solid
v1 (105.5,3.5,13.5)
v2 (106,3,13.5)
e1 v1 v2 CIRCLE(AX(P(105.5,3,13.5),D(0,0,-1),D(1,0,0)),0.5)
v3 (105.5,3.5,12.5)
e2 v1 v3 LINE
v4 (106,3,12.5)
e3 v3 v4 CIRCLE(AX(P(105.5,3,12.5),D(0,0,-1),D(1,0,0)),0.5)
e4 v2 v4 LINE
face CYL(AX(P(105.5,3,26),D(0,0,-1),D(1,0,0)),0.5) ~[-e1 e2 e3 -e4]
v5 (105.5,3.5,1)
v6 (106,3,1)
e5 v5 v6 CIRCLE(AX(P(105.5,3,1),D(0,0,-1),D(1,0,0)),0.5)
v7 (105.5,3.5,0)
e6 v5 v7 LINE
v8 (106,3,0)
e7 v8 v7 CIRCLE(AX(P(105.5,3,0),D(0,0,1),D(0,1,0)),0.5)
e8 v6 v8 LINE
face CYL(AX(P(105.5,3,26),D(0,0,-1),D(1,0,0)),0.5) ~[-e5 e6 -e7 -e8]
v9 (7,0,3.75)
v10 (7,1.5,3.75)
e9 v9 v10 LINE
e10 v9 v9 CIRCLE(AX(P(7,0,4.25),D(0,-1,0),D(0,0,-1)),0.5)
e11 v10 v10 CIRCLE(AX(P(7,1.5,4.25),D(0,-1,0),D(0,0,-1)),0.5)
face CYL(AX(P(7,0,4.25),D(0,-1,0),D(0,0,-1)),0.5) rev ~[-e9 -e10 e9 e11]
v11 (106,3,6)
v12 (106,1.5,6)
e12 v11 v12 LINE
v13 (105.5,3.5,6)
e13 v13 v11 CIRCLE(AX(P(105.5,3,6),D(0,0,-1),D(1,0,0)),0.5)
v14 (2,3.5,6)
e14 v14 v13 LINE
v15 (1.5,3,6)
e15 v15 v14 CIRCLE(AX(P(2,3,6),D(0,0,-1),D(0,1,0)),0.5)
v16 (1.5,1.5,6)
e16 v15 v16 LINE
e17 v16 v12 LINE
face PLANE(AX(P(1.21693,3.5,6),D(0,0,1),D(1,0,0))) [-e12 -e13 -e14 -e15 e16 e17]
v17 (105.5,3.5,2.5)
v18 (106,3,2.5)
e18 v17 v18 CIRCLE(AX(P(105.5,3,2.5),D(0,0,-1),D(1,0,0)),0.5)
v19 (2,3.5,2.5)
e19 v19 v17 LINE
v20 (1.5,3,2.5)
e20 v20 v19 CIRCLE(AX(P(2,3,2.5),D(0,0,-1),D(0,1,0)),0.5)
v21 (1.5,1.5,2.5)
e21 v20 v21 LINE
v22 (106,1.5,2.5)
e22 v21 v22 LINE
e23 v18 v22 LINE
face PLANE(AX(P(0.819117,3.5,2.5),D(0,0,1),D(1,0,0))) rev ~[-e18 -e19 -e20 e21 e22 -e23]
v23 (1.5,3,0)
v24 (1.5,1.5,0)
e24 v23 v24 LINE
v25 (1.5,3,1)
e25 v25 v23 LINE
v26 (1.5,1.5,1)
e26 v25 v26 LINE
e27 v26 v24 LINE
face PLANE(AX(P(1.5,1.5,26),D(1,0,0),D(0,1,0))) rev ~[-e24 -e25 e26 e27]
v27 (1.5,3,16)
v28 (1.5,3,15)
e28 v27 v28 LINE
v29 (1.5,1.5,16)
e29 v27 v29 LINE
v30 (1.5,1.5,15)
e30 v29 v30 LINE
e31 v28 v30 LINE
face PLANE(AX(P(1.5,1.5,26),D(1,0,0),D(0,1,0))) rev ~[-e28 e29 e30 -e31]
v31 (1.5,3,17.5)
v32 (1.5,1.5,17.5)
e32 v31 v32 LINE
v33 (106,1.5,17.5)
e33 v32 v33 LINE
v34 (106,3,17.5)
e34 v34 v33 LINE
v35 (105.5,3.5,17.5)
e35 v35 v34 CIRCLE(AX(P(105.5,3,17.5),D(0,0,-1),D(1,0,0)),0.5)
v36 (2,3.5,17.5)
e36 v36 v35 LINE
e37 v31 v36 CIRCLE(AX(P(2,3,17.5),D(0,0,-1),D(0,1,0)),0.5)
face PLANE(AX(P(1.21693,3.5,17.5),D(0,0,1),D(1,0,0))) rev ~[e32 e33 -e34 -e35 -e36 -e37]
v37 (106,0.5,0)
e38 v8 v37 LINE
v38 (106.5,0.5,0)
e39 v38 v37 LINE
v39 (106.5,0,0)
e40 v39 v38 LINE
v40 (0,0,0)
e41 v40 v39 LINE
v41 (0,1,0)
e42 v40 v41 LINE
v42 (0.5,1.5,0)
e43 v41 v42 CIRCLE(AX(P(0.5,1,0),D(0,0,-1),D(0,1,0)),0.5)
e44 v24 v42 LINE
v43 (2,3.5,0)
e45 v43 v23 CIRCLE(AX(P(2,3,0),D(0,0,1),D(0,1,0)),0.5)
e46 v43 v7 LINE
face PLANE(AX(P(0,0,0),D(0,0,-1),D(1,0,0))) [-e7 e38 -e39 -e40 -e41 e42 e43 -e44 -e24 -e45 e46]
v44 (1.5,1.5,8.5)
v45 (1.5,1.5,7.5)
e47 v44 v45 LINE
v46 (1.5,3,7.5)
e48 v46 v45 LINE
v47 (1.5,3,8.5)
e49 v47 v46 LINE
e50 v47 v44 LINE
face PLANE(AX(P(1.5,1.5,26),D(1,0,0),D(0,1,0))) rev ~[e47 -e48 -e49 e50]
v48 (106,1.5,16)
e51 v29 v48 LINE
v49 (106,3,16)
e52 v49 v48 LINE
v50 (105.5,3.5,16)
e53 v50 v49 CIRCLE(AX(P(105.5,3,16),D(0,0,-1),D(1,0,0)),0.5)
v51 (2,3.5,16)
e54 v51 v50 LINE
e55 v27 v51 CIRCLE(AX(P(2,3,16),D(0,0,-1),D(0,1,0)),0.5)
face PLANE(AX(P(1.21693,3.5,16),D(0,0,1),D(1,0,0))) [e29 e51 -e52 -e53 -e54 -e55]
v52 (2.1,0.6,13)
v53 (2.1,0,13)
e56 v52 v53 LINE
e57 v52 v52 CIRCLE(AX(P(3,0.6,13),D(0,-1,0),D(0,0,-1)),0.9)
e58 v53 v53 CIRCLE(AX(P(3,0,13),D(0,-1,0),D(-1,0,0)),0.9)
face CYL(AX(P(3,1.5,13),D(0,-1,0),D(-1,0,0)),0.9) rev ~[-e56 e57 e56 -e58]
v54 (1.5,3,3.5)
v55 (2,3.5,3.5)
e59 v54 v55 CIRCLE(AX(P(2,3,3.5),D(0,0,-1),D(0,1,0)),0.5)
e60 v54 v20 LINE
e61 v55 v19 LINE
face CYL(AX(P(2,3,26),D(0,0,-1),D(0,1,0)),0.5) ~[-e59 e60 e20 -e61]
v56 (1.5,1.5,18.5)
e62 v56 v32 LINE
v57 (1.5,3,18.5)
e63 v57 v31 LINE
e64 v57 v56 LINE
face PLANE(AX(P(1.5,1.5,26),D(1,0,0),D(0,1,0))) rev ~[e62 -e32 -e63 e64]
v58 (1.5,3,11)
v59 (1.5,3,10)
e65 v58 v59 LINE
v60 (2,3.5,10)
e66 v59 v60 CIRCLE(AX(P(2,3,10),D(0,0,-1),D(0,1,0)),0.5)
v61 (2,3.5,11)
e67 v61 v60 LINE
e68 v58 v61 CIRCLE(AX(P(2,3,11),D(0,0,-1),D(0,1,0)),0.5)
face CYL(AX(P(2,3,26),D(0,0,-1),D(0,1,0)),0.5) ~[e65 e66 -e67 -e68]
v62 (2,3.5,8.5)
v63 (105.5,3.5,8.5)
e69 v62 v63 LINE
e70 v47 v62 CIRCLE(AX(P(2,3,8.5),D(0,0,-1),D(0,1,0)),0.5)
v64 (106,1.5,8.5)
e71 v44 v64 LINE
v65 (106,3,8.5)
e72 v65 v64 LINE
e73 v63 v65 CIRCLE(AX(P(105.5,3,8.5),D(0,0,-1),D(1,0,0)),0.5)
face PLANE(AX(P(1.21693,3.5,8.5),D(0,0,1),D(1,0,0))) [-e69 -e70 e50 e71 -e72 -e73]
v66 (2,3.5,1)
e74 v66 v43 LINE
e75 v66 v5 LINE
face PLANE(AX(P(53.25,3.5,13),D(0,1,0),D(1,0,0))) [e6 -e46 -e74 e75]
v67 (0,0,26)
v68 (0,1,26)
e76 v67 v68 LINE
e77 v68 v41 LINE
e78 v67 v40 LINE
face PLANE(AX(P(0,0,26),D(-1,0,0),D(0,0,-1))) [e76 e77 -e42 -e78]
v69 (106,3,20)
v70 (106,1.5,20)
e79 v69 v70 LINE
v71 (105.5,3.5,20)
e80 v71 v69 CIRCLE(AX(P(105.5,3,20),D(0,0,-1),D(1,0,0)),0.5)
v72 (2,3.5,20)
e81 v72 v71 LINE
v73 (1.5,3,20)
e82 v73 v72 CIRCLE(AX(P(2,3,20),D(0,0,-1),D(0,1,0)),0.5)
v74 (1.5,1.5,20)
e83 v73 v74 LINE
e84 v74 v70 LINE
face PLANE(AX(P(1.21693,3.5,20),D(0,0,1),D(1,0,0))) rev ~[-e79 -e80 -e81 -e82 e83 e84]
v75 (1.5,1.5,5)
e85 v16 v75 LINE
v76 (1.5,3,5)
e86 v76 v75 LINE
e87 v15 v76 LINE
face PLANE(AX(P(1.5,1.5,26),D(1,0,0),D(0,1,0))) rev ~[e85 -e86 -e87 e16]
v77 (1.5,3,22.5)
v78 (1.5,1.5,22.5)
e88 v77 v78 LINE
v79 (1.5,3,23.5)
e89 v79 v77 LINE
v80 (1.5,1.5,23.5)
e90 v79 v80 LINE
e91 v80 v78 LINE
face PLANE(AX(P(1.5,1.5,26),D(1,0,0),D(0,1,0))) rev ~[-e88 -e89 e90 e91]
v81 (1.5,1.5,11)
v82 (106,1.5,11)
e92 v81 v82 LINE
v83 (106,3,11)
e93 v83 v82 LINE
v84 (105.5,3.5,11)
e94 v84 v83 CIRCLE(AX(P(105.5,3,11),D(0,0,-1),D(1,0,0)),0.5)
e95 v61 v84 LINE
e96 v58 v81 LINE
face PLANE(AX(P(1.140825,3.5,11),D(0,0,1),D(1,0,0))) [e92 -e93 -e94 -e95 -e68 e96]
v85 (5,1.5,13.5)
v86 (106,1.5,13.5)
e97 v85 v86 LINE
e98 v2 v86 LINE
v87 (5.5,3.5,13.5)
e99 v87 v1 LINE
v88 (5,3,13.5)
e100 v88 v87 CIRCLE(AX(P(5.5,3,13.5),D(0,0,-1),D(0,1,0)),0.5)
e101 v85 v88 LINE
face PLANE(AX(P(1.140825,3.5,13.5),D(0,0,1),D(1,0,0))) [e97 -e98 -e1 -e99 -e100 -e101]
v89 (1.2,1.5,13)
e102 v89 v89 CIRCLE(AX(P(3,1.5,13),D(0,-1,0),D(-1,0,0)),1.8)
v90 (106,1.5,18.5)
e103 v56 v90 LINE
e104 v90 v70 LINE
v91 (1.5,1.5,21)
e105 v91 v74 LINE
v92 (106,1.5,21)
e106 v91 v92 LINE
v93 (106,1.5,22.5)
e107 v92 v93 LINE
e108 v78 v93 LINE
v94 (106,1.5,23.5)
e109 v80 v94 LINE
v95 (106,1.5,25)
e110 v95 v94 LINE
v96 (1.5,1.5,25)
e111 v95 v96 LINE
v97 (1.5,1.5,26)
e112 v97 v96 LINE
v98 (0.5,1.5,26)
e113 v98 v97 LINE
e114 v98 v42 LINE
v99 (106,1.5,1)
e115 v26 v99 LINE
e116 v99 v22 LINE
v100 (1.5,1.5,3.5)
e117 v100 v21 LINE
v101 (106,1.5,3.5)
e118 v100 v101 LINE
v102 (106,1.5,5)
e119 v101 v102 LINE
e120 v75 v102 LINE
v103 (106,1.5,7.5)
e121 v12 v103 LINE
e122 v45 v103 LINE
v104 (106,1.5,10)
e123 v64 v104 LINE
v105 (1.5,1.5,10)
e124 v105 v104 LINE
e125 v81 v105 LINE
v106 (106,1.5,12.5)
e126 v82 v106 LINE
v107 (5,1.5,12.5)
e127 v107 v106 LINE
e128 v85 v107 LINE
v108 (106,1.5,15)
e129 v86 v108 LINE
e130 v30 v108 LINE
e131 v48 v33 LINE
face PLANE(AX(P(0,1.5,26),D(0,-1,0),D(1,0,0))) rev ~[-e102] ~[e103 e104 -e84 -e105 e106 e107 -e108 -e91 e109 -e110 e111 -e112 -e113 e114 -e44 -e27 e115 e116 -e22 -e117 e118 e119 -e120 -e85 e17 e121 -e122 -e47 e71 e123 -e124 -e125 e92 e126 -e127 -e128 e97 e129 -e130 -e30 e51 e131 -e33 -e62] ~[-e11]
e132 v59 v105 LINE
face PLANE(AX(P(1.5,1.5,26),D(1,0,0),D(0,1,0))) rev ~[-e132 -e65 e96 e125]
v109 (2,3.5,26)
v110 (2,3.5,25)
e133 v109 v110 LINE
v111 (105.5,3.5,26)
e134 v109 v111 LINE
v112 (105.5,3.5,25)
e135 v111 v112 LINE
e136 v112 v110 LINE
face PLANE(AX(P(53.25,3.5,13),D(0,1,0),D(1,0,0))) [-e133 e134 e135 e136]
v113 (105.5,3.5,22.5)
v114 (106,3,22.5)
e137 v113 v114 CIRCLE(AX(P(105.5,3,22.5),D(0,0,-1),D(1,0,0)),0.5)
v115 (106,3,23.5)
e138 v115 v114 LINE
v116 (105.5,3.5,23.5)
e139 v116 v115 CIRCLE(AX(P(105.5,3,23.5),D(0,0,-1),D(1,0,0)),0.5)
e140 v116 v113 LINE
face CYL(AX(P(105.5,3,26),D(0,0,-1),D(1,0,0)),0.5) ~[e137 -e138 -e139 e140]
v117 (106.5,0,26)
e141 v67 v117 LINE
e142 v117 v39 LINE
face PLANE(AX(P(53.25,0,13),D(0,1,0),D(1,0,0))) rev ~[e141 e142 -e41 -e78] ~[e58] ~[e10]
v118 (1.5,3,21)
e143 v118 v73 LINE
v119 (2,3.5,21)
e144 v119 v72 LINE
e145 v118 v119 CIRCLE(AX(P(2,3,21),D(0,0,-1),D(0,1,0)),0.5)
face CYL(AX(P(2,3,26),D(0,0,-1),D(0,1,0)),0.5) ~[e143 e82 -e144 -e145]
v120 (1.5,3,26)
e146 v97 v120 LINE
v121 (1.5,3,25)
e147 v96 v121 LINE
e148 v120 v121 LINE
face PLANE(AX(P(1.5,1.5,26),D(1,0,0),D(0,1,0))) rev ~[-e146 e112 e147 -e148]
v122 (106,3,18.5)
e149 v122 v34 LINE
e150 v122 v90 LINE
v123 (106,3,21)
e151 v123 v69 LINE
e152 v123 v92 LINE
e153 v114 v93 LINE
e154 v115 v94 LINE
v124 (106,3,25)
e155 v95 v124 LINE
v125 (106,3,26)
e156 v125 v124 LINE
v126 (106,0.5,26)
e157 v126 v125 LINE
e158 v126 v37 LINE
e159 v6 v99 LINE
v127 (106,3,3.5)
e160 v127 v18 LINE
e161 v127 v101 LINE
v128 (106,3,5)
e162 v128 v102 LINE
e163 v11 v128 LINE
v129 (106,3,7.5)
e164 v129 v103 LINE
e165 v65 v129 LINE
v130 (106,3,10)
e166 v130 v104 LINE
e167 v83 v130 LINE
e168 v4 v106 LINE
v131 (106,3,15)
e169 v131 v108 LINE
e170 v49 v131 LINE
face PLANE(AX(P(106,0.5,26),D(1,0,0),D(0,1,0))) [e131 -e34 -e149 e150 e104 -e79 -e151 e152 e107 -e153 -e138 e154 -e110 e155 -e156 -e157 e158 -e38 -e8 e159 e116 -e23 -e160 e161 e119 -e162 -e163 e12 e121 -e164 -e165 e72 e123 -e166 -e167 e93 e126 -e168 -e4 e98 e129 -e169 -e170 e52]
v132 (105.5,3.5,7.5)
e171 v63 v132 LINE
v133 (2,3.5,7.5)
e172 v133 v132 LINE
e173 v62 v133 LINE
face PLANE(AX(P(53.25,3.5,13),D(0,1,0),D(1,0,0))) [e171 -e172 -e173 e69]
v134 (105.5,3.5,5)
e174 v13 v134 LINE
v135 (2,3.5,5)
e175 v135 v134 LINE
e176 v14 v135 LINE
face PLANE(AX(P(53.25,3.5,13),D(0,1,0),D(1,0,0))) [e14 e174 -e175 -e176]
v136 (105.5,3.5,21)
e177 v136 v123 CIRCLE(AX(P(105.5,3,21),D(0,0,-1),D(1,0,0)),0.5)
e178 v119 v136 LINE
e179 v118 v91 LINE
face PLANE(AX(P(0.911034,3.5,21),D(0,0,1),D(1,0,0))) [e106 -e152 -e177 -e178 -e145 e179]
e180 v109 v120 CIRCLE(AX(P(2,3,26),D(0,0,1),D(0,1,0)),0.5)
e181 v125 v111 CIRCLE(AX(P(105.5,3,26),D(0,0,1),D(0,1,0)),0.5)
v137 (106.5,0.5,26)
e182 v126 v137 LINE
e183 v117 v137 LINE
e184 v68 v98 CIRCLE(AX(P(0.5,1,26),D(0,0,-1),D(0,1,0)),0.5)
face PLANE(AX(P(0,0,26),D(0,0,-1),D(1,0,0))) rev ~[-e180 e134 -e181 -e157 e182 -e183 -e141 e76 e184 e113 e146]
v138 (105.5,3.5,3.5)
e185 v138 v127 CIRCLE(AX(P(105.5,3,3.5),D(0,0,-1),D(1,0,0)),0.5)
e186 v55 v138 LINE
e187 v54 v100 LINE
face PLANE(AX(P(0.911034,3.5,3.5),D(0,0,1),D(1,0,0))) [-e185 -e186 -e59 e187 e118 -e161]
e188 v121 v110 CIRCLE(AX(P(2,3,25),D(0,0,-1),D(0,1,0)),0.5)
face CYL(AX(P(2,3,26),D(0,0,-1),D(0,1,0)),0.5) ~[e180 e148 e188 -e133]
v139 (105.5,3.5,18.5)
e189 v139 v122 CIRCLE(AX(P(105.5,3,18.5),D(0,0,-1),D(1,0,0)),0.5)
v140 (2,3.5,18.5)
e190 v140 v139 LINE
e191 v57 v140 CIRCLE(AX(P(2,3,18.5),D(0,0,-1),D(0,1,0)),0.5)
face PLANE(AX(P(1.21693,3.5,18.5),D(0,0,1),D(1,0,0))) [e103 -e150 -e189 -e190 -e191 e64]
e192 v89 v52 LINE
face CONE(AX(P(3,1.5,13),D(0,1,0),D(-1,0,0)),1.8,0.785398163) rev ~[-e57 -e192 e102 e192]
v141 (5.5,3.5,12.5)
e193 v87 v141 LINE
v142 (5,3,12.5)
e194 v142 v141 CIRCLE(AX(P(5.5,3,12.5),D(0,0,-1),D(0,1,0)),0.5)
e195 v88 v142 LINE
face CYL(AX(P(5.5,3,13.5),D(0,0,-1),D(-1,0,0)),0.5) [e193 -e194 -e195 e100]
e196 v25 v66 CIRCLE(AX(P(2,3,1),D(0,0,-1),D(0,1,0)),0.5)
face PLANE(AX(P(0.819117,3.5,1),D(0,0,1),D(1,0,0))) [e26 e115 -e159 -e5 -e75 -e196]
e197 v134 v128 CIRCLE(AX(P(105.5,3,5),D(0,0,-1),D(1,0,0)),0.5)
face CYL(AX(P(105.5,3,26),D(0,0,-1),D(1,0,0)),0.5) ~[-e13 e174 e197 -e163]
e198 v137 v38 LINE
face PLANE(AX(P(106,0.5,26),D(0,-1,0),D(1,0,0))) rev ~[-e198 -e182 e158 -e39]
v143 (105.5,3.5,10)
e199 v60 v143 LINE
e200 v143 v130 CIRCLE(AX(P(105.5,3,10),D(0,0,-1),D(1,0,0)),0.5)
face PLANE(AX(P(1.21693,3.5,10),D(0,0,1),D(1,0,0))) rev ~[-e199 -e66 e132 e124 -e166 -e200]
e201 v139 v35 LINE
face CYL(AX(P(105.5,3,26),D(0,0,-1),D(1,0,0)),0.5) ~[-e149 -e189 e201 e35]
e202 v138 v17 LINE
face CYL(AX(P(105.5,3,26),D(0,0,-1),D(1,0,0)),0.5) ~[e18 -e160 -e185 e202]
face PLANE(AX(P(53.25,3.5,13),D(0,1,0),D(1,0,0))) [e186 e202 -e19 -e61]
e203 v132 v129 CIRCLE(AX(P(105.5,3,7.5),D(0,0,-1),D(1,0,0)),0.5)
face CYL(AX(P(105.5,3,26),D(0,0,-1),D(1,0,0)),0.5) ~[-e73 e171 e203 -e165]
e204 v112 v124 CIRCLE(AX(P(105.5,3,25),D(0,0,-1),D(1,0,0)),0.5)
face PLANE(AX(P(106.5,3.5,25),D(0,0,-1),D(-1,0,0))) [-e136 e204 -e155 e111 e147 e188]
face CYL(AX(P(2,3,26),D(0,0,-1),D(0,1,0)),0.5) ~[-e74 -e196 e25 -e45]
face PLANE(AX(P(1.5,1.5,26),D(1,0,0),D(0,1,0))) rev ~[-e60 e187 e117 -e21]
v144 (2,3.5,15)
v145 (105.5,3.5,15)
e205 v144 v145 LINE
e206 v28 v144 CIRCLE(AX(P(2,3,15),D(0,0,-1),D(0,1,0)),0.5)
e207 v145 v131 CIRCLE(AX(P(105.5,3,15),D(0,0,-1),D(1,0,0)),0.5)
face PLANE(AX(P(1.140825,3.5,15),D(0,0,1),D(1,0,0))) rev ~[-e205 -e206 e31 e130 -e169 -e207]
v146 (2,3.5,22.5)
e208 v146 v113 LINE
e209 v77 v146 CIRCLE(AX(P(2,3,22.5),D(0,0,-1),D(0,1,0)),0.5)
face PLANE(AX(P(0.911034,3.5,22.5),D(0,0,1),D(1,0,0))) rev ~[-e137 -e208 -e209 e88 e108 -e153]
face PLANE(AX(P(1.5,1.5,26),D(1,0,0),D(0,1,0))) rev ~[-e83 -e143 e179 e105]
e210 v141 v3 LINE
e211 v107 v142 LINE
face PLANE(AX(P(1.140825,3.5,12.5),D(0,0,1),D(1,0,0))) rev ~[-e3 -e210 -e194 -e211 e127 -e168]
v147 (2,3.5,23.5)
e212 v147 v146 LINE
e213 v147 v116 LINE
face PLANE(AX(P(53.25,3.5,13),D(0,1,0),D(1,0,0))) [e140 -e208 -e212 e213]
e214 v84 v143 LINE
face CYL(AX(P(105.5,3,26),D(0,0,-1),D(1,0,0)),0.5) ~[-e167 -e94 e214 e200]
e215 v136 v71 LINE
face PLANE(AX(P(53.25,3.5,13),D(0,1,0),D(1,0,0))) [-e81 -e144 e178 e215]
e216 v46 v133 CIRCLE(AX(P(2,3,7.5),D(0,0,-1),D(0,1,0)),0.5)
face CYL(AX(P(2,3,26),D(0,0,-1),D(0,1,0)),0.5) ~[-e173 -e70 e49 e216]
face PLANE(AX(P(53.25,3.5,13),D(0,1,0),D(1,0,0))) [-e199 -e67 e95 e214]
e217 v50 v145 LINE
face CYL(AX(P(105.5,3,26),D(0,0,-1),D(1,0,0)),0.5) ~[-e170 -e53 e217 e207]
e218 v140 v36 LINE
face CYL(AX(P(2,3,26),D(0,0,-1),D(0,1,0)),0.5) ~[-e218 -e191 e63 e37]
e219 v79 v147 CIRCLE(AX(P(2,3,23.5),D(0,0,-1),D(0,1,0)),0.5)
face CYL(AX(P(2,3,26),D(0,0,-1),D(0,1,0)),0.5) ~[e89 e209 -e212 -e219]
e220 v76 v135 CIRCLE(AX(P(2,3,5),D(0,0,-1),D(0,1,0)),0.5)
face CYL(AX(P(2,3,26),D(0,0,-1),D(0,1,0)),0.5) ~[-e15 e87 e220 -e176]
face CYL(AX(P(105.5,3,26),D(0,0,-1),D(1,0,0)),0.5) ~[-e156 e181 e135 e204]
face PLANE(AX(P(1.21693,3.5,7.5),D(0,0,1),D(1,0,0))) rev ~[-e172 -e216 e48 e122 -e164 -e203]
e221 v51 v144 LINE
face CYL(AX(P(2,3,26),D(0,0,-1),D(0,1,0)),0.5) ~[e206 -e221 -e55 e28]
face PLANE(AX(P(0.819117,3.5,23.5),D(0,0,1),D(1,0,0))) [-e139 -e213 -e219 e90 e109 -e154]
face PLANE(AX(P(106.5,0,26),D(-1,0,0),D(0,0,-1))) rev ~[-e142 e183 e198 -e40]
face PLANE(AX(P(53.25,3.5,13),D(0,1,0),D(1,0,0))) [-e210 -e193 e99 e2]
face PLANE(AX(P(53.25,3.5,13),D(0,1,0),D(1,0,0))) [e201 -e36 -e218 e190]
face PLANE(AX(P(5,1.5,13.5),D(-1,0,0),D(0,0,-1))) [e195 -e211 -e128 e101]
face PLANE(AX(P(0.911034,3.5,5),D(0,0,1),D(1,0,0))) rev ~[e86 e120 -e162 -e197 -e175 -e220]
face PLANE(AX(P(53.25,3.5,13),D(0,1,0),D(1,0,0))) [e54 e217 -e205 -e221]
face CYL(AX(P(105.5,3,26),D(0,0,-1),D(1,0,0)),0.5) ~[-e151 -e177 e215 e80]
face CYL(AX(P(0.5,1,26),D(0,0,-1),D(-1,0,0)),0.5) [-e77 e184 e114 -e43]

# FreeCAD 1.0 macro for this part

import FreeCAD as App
import Part
import Sketcher
from FreeCAD import Vector
Q = App.Units.Quantity


def edges_at(feature, points):
    """Names of the edges that pass closest to the given points."""
    edges = feature.Shape.Edges
    near = lambda p: min(range(len(edges)), key=lambda i: edges[i].distToShape(Part.Vertex(*p))[0])
    return sorted({f"Edge{near(p) + 1}" for p in points})

doc = App.newDocument("Part")
body = doc.addObject("PartDesign::Body", "Body")

# Sketch on XZ plane
sketch1 = body.newObject("Sketcher::SketchObject", "Sketch")
sketch1.AttachmentSupport = (doc.getObject("XZ_Plane"), [""])
sketch1.MapMode = "FlatFace"
sketch1.addGeometry([
    Part.LineSegment(Vector(0, 0, 0), Vector(0, 26, 0)),
    Part.LineSegment(Vector(0, 26, 0), Vector(106, 26, 0)),
    Part.LineSegment(Vector(106, 26, 0), Vector(106, 0, 0)),
    Part.LineSegment(Vector(106, 0, 0), Vector(0, 0, 0)),
], False)
sketch1.addConstraint([
    Sketcher.Constraint("Coincident", 0, 2, 1, 1),
    Sketcher.Constraint("Coincident", 1, 2, 2, 1),
    Sketcher.Constraint("Coincident", 2, 2, 3, 1),
    Sketcher.Constraint("Coincident", 3, 2, 0, 1),
    Sketcher.Constraint("Vertical", 0),
    Sketcher.Constraint("Horizontal", 1),
    Sketcher.Constraint("Vertical", 2),
    Sketcher.Constraint("Horizontal", 3),
    Sketcher.Constraint("Coincident", 3, 2, -1, 1),
    Sketcher.Constraint("DistanceY", 0, 1, 0, 2, Q("26 mm")),
    Sketcher.Constraint("DistanceX", 1, 1, 1, 2, Q("106.5 mm")),
])
pad1 = body.newObject("PartDesign::Pad", "Pad")
pad1.Profile = sketch1
pad1.Length = 3.5
pad1.Reversed = True

# Sketch on XY plane
sketch2 = body.newObject("Sketcher::SketchObject", "Sketch001")
sketch2.AttachmentSupport = (doc.getObject("XY_Plane"), [""])
sketch2.MapMode = "FlatFace"
sketch2.AttachmentOffset = App.Placement(Vector(0, 0, 26), App.Rotation())
sketch2.addGeometry([
    Part.LineSegment(Vector(106, 3.5, 0), Vector(106, 0.5, 0)),  # 0
    Part.LineSegment(Vector(106, 0.5, 0), Vector(106.5, 0.5, 0)),  # 1
    Part.LineSegment(Vector(106.5, 0.5, 0), Vector(106.5, 3.5, 0)),  # 2
    Part.LineSegment(Vector(106.5, 3.5, 0), Vector(106, 3.5, 0)),  # 3
    Part.LineSegment(Vector(0, 3.5, 0), Vector(0, 1.5, 0)),  # 4
    Part.LineSegment(Vector(0, 1.5, 0), Vector(1.5, 1.5, 0)),  # 5
    Part.LineSegment(Vector(1.5, 1.5, 0), Vector(1.5, 3.5, 0)),  # 6
    Part.LineSegment(Vector(1.5, 3.5, 0), Vector(0, 3.5, 0)),  # 7
], False)
sketch2.addConstraint([
    Sketcher.Constraint("Coincident", 0, 2, 1, 1),
    Sketcher.Constraint("Coincident", 1, 2, 2, 1),
    Sketcher.Constraint("Coincident", 2, 2, 3, 1),
    Sketcher.Constraint("Coincident", 3, 2, 0, 1),
    Sketcher.Constraint("Coincident", 4, 2, 5, 1),
    Sketcher.Constraint("Coincident", 5, 2, 6, 1),
    Sketcher.Constraint("Coincident", 6, 2, 7, 1),
    Sketcher.Constraint("Coincident", 7, 2, 4, 1),
    Sketcher.Constraint("Vertical", 0),
    Sketcher.Constraint("Horizontal", 1),
    Sketcher.Constraint("Vertical", 2),
    Sketcher.Constraint("Horizontal", 3),
    Sketcher.Constraint("Vertical", 4),
    Sketcher.Constraint("Horizontal", 5),
    Sketcher.Constraint("Vertical", 6),
    Sketcher.Constraint("Horizontal", 7),
    Sketcher.Constraint("PointOnObject", 4, 2, -2),
    Sketcher.Constraint("Horizontal", 3, 2, 6, 2),
    Sketcher.Constraint("DistanceY", 0, 2, 0, 1, Q("3 mm")),
    Sketcher.Constraint("DistanceY", 4, 2, 4, 1, Q("2 mm")),
    Sketcher.Constraint("DistanceX", 1, 1, 1, 2, Q("0.5 mm")),
    Sketcher.Constraint("DistanceX", 5, 1, 5, 2, Q("1.5 mm")),
    Sketcher.Constraint("DistanceX", -1, 1, 0, 2, Q("106 mm")),
    Sketcher.Constraint("DistanceY", -1, 1, 0, 2, Q("0.5 mm")),
])
pocket1 = body.newObject("PartDesign::Pocket", "Pocket")
pocket1.Profile = sketch2
pocket1.Type = "ThroughAll"
doc.recompute()

fillet = body.newObject("PartDesign::Fillet", "Fillet")
fillet.Base = (pocket1, edges_at(pocket1, [(106, 3.5, 13), (0, 1.5, 13), (1.5, 3.5, 13)]))
fillet.Radius = 0.5

# Sketch on XZ plane
sketch3 = body.newObject("Sketcher::SketchObject", "Sketch002")
sketch3.AttachmentSupport = (doc.getObject("XZ_Plane"), [""])
sketch3.MapMode = "FlatFace"
sketch3.AttachmentOffset = App.Placement(Vector(0, 0, -3.5), App.Rotation())
sketch3.addGeometry([
    Part.LineSegment(Vector(0.8, 1, 0), Vector(0.8, 2.5, 0)),  # 0
    Part.LineSegment(Vector(0.8, 2.5, 0), Vector(108, 2.5, 0)),  # 1
    Part.LineSegment(Vector(108, 2.5, 0), Vector(108, 1, 0)),  # 2
    Part.LineSegment(Vector(108, 1, 0), Vector(0.8, 1, 0)),  # 3
    Part.LineSegment(Vector(0.9, 3.5, 0), Vector(0.9, 5, 0)),  # 4
    Part.LineSegment(Vector(0.9, 5, 0), Vector(107.7, 5, 0)),  # 5
    Part.LineSegment(Vector(107.7, 5, 0), Vector(107.7, 3.5, 0)),  # 6
    Part.LineSegment(Vector(107.7, 3.5, 0), Vector(0.9, 3.5, 0)),  # 7
    Part.LineSegment(Vector(1.2, 6, 0), Vector(1.2, 7.5, 0)),  # 8
    Part.LineSegment(Vector(1.2, 7.5, 0), Vector(107.7, 7.5, 0)),  # 9
    Part.LineSegment(Vector(107.7, 7.5, 0), Vector(107.7, 6, 0)),  # 10
    Part.LineSegment(Vector(107.7, 6, 0), Vector(1.2, 6, 0)),  # 11
    Part.LineSegment(Vector(1.2, 8.5, 0), Vector(1.2, 10, 0)),  # 12
    Part.LineSegment(Vector(1.2, 10, 0), Vector(107.7, 10, 0)),  # 13
    Part.LineSegment(Vector(107.7, 10, 0), Vector(107.7, 8.5, 0)),  # 14
    Part.LineSegment(Vector(107.7, 8.5, 0), Vector(1.2, 8.5, 0)),  # 15
    Part.LineSegment(Vector(108, 23.5, 0), Vector(0.8, 23.5, 0)),  # 16
    Part.LineSegment(Vector(0.8, 23.5, 0), Vector(0.8, 25, 0)),  # 17
    Part.LineSegment(Vector(0.8, 25, 0), Vector(106.5, 25, 0)),  # 18
    Part.LineSegment(Vector(106.5, 25, 0), Vector(108, 23.5, 0)),  # 19
    Part.LineSegment(Vector(0.9, 21, 0), Vector(0.9, 22.5, 0)),  # 20
    Part.LineSegment(Vector(0.9, 22.5, 0), Vector(107.7, 22.5, 0)),  # 21
    Part.LineSegment(Vector(107.7, 22.5, 0), Vector(107.7, 21, 0)),  # 22
    Part.LineSegment(Vector(107.7, 21, 0), Vector(0.9, 21, 0)),  # 23
    Part.LineSegment(Vector(1.2, 18.5, 0), Vector(1.2, 20, 0)),  # 24
    Part.LineSegment(Vector(1.2, 20, 0), Vector(107.7, 20, 0)),  # 25
    Part.LineSegment(Vector(107.7, 20, 0), Vector(107.7, 18.5, 0)),  # 26
    Part.LineSegment(Vector(107.7, 18.5, 0), Vector(1.2, 18.5, 0)),  # 27
    Part.LineSegment(Vector(1.2, 16, 0), Vector(1.2, 17.5, 0)),  # 28
    Part.LineSegment(Vector(1.2, 17.5, 0), Vector(107.7, 17.5, 0)),  # 29
    Part.LineSegment(Vector(107.7, 17.5, 0), Vector(107.7, 16, 0)),  # 30
    Part.LineSegment(Vector(107.7, 16, 0), Vector(1.2, 16, 0)),  # 31
    Part.LineSegment(Vector(1.1, 11, 0), Vector(1.1, 12.5, 0)),  # 32
    Part.LineSegment(Vector(1.1, 12.5, 0), Vector(107.9, 12.5, 0)),  # 33
    Part.LineSegment(Vector(107.9, 12.5, 0), Vector(107.9, 11, 0)),  # 34
    Part.LineSegment(Vector(107.9, 11, 0), Vector(1.1, 11, 0)),  # 35
    Part.LineSegment(Vector(1.1, 13.5, 0), Vector(1.1, 15, 0)),  # 36
    Part.LineSegment(Vector(1.1, 15, 0), Vector(107.9, 15, 0)),  # 37
    Part.LineSegment(Vector(107.9, 15, 0), Vector(107.9, 13.5, 0)),  # 38
    Part.LineSegment(Vector(107.9, 13.5, 0), Vector(1.1, 13.5, 0)),  # 39
], False)
sketch3.addConstraint([
    Sketcher.Constraint("Coincident", 0, 2, 1, 1),
    Sketcher.Constraint("Coincident", 1, 2, 2, 1),
    Sketcher.Constraint("Coincident", 2, 2, 3, 1),
    Sketcher.Constraint("Coincident", 3, 2, 0, 1),
    Sketcher.Constraint("Coincident", 4, 2, 5, 1),
    Sketcher.Constraint("Coincident", 5, 2, 6, 1),
    Sketcher.Constraint("Coincident", 6, 2, 7, 1),
    Sketcher.Constraint("Coincident", 7, 2, 4, 1),
    Sketcher.Constraint("Coincident", 8, 2, 9, 1),
    Sketcher.Constraint("Coincident", 9, 2, 10, 1),
    Sketcher.Constraint("Coincident", 10, 2, 11, 1),
    Sketcher.Constraint("Coincident", 11, 2, 8, 1),
    Sketcher.Constraint("Coincident", 12, 2, 13, 1),
    Sketcher.Constraint("Coincident", 13, 2, 14, 1),
    Sketcher.Constraint("Coincident", 14, 2, 15, 1),
    Sketcher.Constraint("Coincident", 15, 2, 12, 1),
    Sketcher.Constraint("Coincident", 16, 2, 17, 1),
    Sketcher.Constraint("Coincident", 17, 2, 18, 1),
    Sketcher.Constraint("Coincident", 18, 2, 19, 1),
    Sketcher.Constraint("Coincident", 19, 2, 16, 1),
    Sketcher.Constraint("Coincident", 20, 2, 21, 1),
    Sketcher.Constraint("Coincident", 21, 2, 22, 1),
    Sketcher.Constraint("Coincident", 22, 2, 23, 1),
    Sketcher.Constraint("Coincident", 23, 2, 20, 1),
    Sketcher.Constraint("Coincident", 24, 2, 25, 1),
    Sketcher.Constraint("Coincident", 25, 2, 26, 1),
    Sketcher.Constraint("Coincident", 26, 2, 27, 1),
    Sketcher.Constraint("Coincident", 27, 2, 24, 1),
    Sketcher.Constraint("Coincident", 28, 2, 29, 1),
    Sketcher.Constraint("Coincident", 29, 2, 30, 1),
    Sketcher.Constraint("Coincident", 30, 2, 31, 1),
    Sketcher.Constraint("Coincident", 31, 2, 28, 1),
    Sketcher.Constraint("Coincident", 32, 2, 33, 1),
    Sketcher.Constraint("Coincident", 33, 2, 34, 1),
    Sketcher.Constraint("Coincident", 34, 2, 35, 1),
    Sketcher.Constraint("Coincident", 35, 2, 32, 1),
    Sketcher.Constraint("Coincident", 36, 2, 37, 1),
    Sketcher.Constraint("Coincident", 37, 2, 38, 1),
    Sketcher.Constraint("Coincident", 38, 2, 39, 1),
    Sketcher.Constraint("Coincident", 39, 2, 36, 1),
    Sketcher.Constraint("Vertical", 0),
    Sketcher.Constraint("Horizontal", 1),
    Sketcher.Constraint("Vertical", 2),
    Sketcher.Constraint("Horizontal", 3),
    Sketcher.Constraint("Vertical", 4),
    Sketcher.Constraint("Horizontal", 5),
    Sketcher.Constraint("Vertical", 6),
    Sketcher.Constraint("Horizontal", 7),
    Sketcher.Constraint("Vertical", 8),
    Sketcher.Constraint("Horizontal", 9),
    Sketcher.Constraint("Vertical", 10),
    Sketcher.Constraint("Horizontal", 11),
    Sketcher.Constraint("Vertical", 12),
    Sketcher.Constraint("Horizontal", 13),
    Sketcher.Constraint("Vertical", 14),
    Sketcher.Constraint("Horizontal", 15),
    Sketcher.Constraint("Horizontal", 16),
    Sketcher.Constraint("Vertical", 17),
    Sketcher.Constraint("Horizontal", 18),
    Sketcher.Constraint("Vertical", 20),
    Sketcher.Constraint("Horizontal", 21),
    Sketcher.Constraint("Vertical", 22),
    Sketcher.Constraint("Horizontal", 23),
    Sketcher.Constraint("Vertical", 24),
    Sketcher.Constraint("Horizontal", 25),
    Sketcher.Constraint("Vertical", 26),
    Sketcher.Constraint("Horizontal", 27),
    Sketcher.Constraint("Vertical", 28),
    Sketcher.Constraint("Horizontal", 29),
    Sketcher.Constraint("Vertical", 30),
    Sketcher.Constraint("Horizontal", 31),
    Sketcher.Constraint("Vertical", 32),
    Sketcher.Constraint("Horizontal", 33),
    Sketcher.Constraint("Vertical", 34),
    Sketcher.Constraint("Horizontal", 35),
    Sketcher.Constraint("Vertical", 36),
    Sketcher.Constraint("Horizontal", 37),
    Sketcher.Constraint("Vertical", 38),
    Sketcher.Constraint("Horizontal", 39),
    Sketcher.Constraint("Vertical", 11, 2, 12, 2),
    Sketcher.Constraint("Vertical", 10, 2, 13, 2),
    Sketcher.Constraint("Vertical", 3, 2, 16, 2),
    Sketcher.Constraint("Vertical", 2, 2, 19, 2),
    Sketcher.Constraint("Vertical", 7, 2, 20, 2),
    Sketcher.Constraint("Vertical", 6, 2, 21, 2),
    Sketcher.Constraint("Vertical", 15, 2, 24, 2),
    Sketcher.Constraint("Vertical", 14, 2, 25, 2),
    Sketcher.Constraint("Vertical", 27, 2, 28, 2),
    Sketcher.Constraint("Vertical", 26, 2, 29, 2),
    Sketcher.Constraint("Vertical", 35, 2, 36, 2),
    Sketcher.Constraint("Vertical", 34, 2, 37, 2),
    Sketcher.Constraint("Equal", 2, 4),
    Sketcher.Constraint("Equal", 6, 8),
    Sketcher.Constraint("Equal", 10, 12),
    Sketcher.Constraint("Equal", 14, 17),
    Sketcher.Constraint("Equal", 17, 20),
    Sketcher.Constraint("Equal", 22, 24),
    Sketcher.Constraint("Equal", 26, 28),
    Sketcher.Constraint("Equal", 30, 32),
    Sketcher.Constraint("Equal", 34, 36),
    Sketcher.Constraint("Angle", 19, Q("-45 deg")),
    Sketcher.Constraint("DistanceY", 0, 1, 0, 2, Q("1.5 mm")),
    Sketcher.Constraint("DistanceX", -1, 1, 1, 2, Q("108 mm")),
    Sketcher.Constraint("DistanceY", -1, 1, 2, 2, Q("1 mm")),
    Sketcher.Constraint("DistanceY", -1, 1, 4, 2, Q("5 mm")),
    Sketcher.Constraint("DistanceY", -1, 1, 10, 2, Q("6 mm")),
    Sketcher.Constraint("DistanceY", -1, 1, 12, 2, Q("10 mm")),
    Sketcher.Constraint("DistanceY", -1, 1, 17, 2, Q("25 mm")),
    Sketcher.Constraint("DistanceY", -1, 1, 22, 2, Q("21 mm")),
    Sketcher.Constraint("DistanceY", -1, 1, 24, 2, Q("20 mm")),
    Sketcher.Constraint("DistanceY", -1, 1, 30, 2, Q("16 mm")),
    Sketcher.Constraint("DistanceY", -1, 1, 34, 2, Q("11 mm")),
    Sketcher.Constraint("DistanceY", -1, 1, 36, 2, Q("15 mm")),
    Sketcher.Constraint("DistanceX", -1, 1, 33, 2, Q("107.851298 mm")),
    Sketcher.Constraint("DistanceX", 1, 1, 1, 2, Q("107.180883 mm")),
    Sketcher.Constraint("DistanceX", 5, 1, 5, 2, Q("106.799237 mm")),
    Sketcher.Constraint("DistanceX", 9, 1, 9, 2, Q("106.532134 mm")),
    Sketcher.Constraint("DistanceX", 33, 1, 33, 2, Q("106.710473 mm")),
    Sketcher.Constraint("DistanceX", -1, 1, 5, 2, Q("107.710271 mm")),
    Sketcher.Constraint("DistanceX", -1, 1, 8, 2, Q("1.21693 mm")),
])
pocket2 = body.newObject("PartDesign::Pocket", "Pocket001")
pocket2.Profile = sketch3
pocket2.Length = 2
pocket2.Reversed = True

# Sketch on XZ plane
sketch4 = body.newObject("Sketcher::SketchObject", "Sketch003")
sketch4.AttachmentSupport = (doc.getObject("XZ_Plane"), [""])
sketch4.MapMode = "FlatFace"
sketch4.AttachmentOffset = App.Placement(Vector(0, 0, -1.5), App.Rotation())
sketch4.addGeometry([
    Part.LineSegment(Vector(5, 13.5, 0), Vector(5, 12.5, 0)),  # 0
    Part.LineSegment(Vector(5, 12.5, 0), Vector(106, 12.5, 0)),  # 1
    Part.LineSegment(Vector(106, 12.5, 0), Vector(106, 11, 0)),  # 2
    Part.LineSegment(Vector(106, 11, 0), Vector(1.5, 11, 0)),  # 3
    Part.LineSegment(Vector(1.5, 11, 0), Vector(1.5, 10, 0)),  # 4
    Part.LineSegment(Vector(1.5, 10, 0), Vector(106, 10, 0)),  # 5
    Part.LineSegment(Vector(106, 10, 0), Vector(106, 8.5, 0)),  # 6
    Part.LineSegment(Vector(106, 8.5, 0), Vector(1.5, 8.5, 0)),  # 7
    Part.LineSegment(Vector(1.5, 8.5, 0), Vector(1.5, 7.5, 0)),  # 8
    Part.LineSegment(Vector(1.5, 7.5, 0), Vector(106, 7.5, 0)),  # 9
    Part.LineSegment(Vector(106, 7.5, 0), Vector(106, 6, 0)),  # 10
    Part.LineSegment(Vector(106, 6, 0), Vector(1.5, 6, 0)),  # 11
    Part.LineSegment(Vector(1.5, 6, 0), Vector(1.5, 5, 0)),  # 12
    Part.LineSegment(Vector(1.5, 5, 0), Vector(106, 5, 0)),  # 13
    Part.LineSegment(Vector(106, 5, 0), Vector(106, 3.5, 0)),  # 14
    Part.LineSegment(Vector(106, 3.5, 0), Vector(1.5, 3.5, 0)),  # 15
    Part.LineSegment(Vector(1.5, 3.5, 0), Vector(1.5, 2.5, 0)),  # 16
    Part.LineSegment(Vector(1.5, 2.5, 0), Vector(106, 2.5, 0)),  # 17
    Part.LineSegment(Vector(106, 2.5, 0), Vector(106, 1, 0)),  # 18
    Part.LineSegment(Vector(106, 1, 0), Vector(1.5, 1, 0)),  # 19
    Part.LineSegment(Vector(1.5, 1, 0), Vector(1.5, 0, 0)),  # 20
    Part.LineSegment(Vector(1.5, 0, 0), Vector(0.5, 0, 0)),  # 21
    Part.LineSegment(Vector(0.5, 0, 0), Vector(0.5, 26, 0)),  # 22
    Part.LineSegment(Vector(0.5, 26, 0), Vector(1.5, 26, 0)),  # 23
    Part.LineSegment(Vector(1.5, 26, 0), Vector(1.5, 25, 0)),  # 24
    Part.LineSegment(Vector(1.5, 25, 0), Vector(106, 25, 0)),  # 25
    Part.LineSegment(Vector(106, 25, 0), Vector(106, 23.5, 0)),  # 26
    Part.LineSegment(Vector(106, 23.5, 0), Vector(1.5, 23.5, 0)),  # 27
    Part.LineSegment(Vector(1.5, 23.5, 0), Vector(1.5, 22.5, 0)),  # 28
    Part.LineSegment(Vector(1.5, 22.5, 0), Vector(106, 22.5, 0)),  # 29
    Part.LineSegment(Vector(106, 22.5, 0), Vector(106, 21, 0)),  # 30
    Part.LineSegment(Vector(106, 21, 0), Vector(1.5, 21, 0)),  # 31
    Part.LineSegment(Vector(1.5, 21, 0), Vector(1.5, 20, 0)),  # 32
    Part.LineSegment(Vector(1.5, 20, 0), Vector(106, 20, 0)),  # 33
    Part.LineSegment(Vector(106, 20, 0), Vector(106, 18.5, 0)),  # 34
    Part.LineSegment(Vector(106, 18.5, 0), Vector(1.5, 18.5, 0)),  # 35
    Part.LineSegment(Vector(1.5, 18.5, 0), Vector(1.5, 17.5, 0)),  # 36
    Part.LineSegment(Vector(1.5, 17.5, 0), Vector(106, 17.5, 0)),  # 37
    Part.LineSegment(Vector(106, 17.5, 0), Vector(106, 16, 0)),  # 38
    Part.LineSegment(Vector(106, 16, 0), Vector(1.5, 16, 0)),  # 39
    Part.LineSegment(Vector(1.5, 16, 0), Vector(1.5, 15, 0)),  # 40
    Part.LineSegment(Vector(1.5, 15, 0), Vector(106, 15, 0)),  # 41
    Part.LineSegment(Vector(106, 15, 0), Vector(106, 13.5, 0)),  # 42
    Part.LineSegment(Vector(106, 13.5, 0), Vector(5, 13.5, 0)),  # 43
    Part.LineSegment(Vector(5, 13.5, 0), Vector(5, 14.5, 0)),  # 44
    Part.LineSegment(Vector(5, 14.5, 0), Vector(1.5, 14.5, 0)),  # 45
    Part.LineSegment(Vector(1.5, 14.5, 0), Vector(1.5, 13.5, 0)),  # 46
    Part.LineSegment(Vector(1.5, 13.5, 0), Vector(5, 13.5, 0)),  # 47
    Part.LineSegment(Vector(5, 12.5, 0), Vector(1.5, 12.5, 0)),  # 48
    Part.LineSegment(Vector(1.5, 12.5, 0), Vector(1.5, 11.2, 0)),  # 49
    Part.LineSegment(Vector(1.5, 11.2, 0), Vector(5, 11.2, 0)),  # 50
    Part.LineSegment(Vector(5, 11.2, 0), Vector(5, 12.5, 0)),  # 51
], False)
sketch4.addConstraint([
    Sketcher.Constraint("Coincident", 0, 2, 1, 1),
    Sketcher.Constraint("Coincident", 1, 2, 2, 1),
    Sketcher.Constraint("Coincident", 2, 2, 3, 1),
    Sketcher.Constraint("Coincident", 3, 2, 4, 1),
    Sketcher.Constraint("Coincident", 4, 2, 5, 1),
    Sketcher.Constraint("Coincident", 5, 2, 6, 1),
    Sketcher.Constraint("Coincident", 6, 2, 7, 1),
    Sketcher.Constraint("Coincident", 7, 2, 8, 1),
    Sketcher.Constraint("Coincident", 8, 2, 9, 1),
    Sketcher.Constraint("Coincident", 9, 2, 10, 1),
    Sketcher.Constraint("Coincident", 10, 2, 11, 1),
    Sketcher.Constraint("Coincident", 11, 2, 12, 1),
    Sketcher.Constraint("Coincident", 12, 2, 13, 1),
    Sketcher.Constraint("Coincident", 13, 2, 14, 1),
    Sketcher.Constraint("Coincident", 14, 2, 15, 1),
    Sketcher.Constraint("Coincident", 15, 2, 16, 1),
    Sketcher.Constraint("Coincident", 16, 2, 17, 1),
    Sketcher.Constraint("Coincident", 17, 2, 18, 1),
    Sketcher.Constraint("Coincident", 18, 2, 19, 1),
    Sketcher.Constraint("Coincident", 19, 2, 20, 1),
    Sketcher.Constraint("Coincident", 20, 2, 21, 1),
    Sketcher.Constraint("Coincident", 21, 2, 22, 1),
    Sketcher.Constraint("Coincident", 22, 2, 23, 1),
    Sketcher.Constraint("Coincident", 23, 2, 24, 1),
    Sketcher.Constraint("Coincident", 24, 2, 25, 1),
    Sketcher.Constraint("Coincident", 25, 2, 26, 1),
    Sketcher.Constraint("Coincident", 26, 2, 27, 1),
    Sketcher.Constraint("Coincident", 27, 2, 28, 1),
    Sketcher.Constraint("Coincident", 28, 2, 29, 1),
    Sketcher.Constraint("Coincident", 29, 2, 30, 1),
    Sketcher.Constraint("Coincident", 30, 2, 31, 1),
    Sketcher.Constraint("Coincident", 31, 2, 32, 1),
    Sketcher.Constraint("Coincident", 32, 2, 33, 1),
    Sketcher.Constraint("Coincident", 33, 2, 34, 1),
    Sketcher.Constraint("Coincident", 34, 2, 35, 1),
    Sketcher.Constraint("Coincident", 35, 2, 36, 1),
    Sketcher.Constraint("Coincident", 36, 2, 37, 1),
    Sketcher.Constraint("Coincident", 37, 2, 38, 1),
    Sketcher.Constraint("Coincident", 38, 2, 39, 1),
    Sketcher.Constraint("Coincident", 39, 2, 40, 1),
    Sketcher.Constraint("Coincident", 40, 2, 41, 1),
    Sketcher.Constraint("Coincident", 41, 2, 42, 1),
    Sketcher.Constraint("Coincident", 42, 2, 43, 1),
    Sketcher.Constraint("Coincident", 43, 2, 0, 1),
    Sketcher.Constraint("Coincident", 44, 2, 45, 1),
    Sketcher.Constraint("Coincident", 45, 2, 46, 1),
    Sketcher.Constraint("Coincident", 46, 2, 47, 1),
    Sketcher.Constraint("Coincident", 47, 2, 44, 1),
    Sketcher.Constraint("Coincident", 48, 2, 49, 1),
    Sketcher.Constraint("Coincident", 49, 2, 50, 1),
    Sketcher.Constraint("Coincident", 50, 2, 51, 1),
    Sketcher.Constraint("Coincident", 51, 2, 48, 1),
    Sketcher.Constraint("Vertical", 0),
    Sketcher.Constraint("Horizontal", 1),
    Sketcher.Constraint("Vertical", 2),
    Sketcher.Constraint("Horizontal", 3),
    Sketcher.Constraint("Vertical", 4),
    Sketcher.Constraint("Horizontal", 5),
    Sketcher.Constraint("Vertical", 6),
    Sketcher.Constraint("Horizontal", 7),
    Sketcher.Constraint("Vertical", 8),
    Sketcher.Constraint("Horizontal", 9),
    Sketcher.Constraint("Vertical", 10),
    Sketcher.Constraint("Horizontal", 11),
    Sketcher.Constraint("Vertical", 12),
    Sketcher.Constraint("Horizontal", 13),
    Sketcher.Constraint("Vertical", 14),
    Sketcher.Constraint("Horizontal", 15),
    Sketcher.Constraint("Vertical", 16),
    Sketcher.Constraint("Horizontal", 17),
    Sketcher.Constraint("Vertical", 18),
    Sketcher.Constraint("Horizontal", 19),
    Sketcher.Constraint("Vertical", 20),
    Sketcher.Constraint("Horizontal", 21),
    Sketcher.Constraint("Vertical", 22),
    Sketcher.Constraint("Horizontal", 23),
    Sketcher.Constraint("Vertical", 24),
    Sketcher.Constraint("Horizontal", 25),
    Sketcher.Constraint("Vertical", 26),
    Sketcher.Constraint("Horizontal", 27),
    Sketcher.Constraint("Vertical", 28),
    Sketcher.Constraint("Horizontal", 29),
    Sketcher.Constraint("Vertical", 30),
    Sketcher.Constraint("Horizontal", 31),
    Sketcher.Constraint("Vertical", 32),
    Sketcher.Constraint("Horizontal", 33),
    Sketcher.Constraint("Vertical", 34),
    Sketcher.Constraint("Horizontal", 35),
    Sketcher.Constraint("Vertical", 36),
    Sketcher.Constraint("Horizontal", 37),
    Sketcher.Constraint("Vertical", 38),
    Sketcher.Constraint("Horizontal", 39),
    Sketcher.Constraint("Vertical", 40),
    Sketcher.Constraint("Horizontal", 41),
    Sketcher.Constraint("Vertical", 42),
    Sketcher.Constraint("Horizontal", 43),
    Sketcher.Constraint("Vertical", 44),
    Sketcher.Constraint("Horizontal", 45),
    Sketcher.Constraint("Vertical", 46),
    Sketcher.Constraint("Horizontal", 47),
    Sketcher.Constraint("Horizontal", 48),
    Sketcher.Constraint("Vertical", 49),
    Sketcher.Constraint("Horizontal", 50),
    Sketcher.Constraint("Vertical", 51),
    Sketcher.Constraint("Coincident", 47, 2, 43, 2),
    Sketcher.Constraint("Coincident", 51, 2, 0, 2),
    Sketcher.Constraint("PointOnObject", 20, 2, -1),
    Sketcher.Constraint("Vertical", 2, 2, 5, 2),
    Sketcher.Constraint("Vertical", 4, 2, 7, 2),
    Sketcher.Constraint("Vertical", 6, 2, 9, 2),
    Sketcher.Constraint("Vertical", 8, 2, 11, 2),
    Sketcher.Constraint("Vertical", 10, 2, 13, 2),
    Sketcher.Constraint("Vertical", 12, 2, 15, 2),
    Sketcher.Constraint("Vertical", 14, 2, 17, 2),
    Sketcher.Constraint("Vertical", 16, 2, 19, 2),
    Sketcher.Constraint("Vertical", 20, 2, 23, 2),
    Sketcher.Constraint("Vertical", 18, 2, 25, 2),
    Sketcher.Constraint("Vertical", 24, 2, 27, 2),
    Sketcher.Constraint("Vertical", 26, 2, 29, 2),
    Sketcher.Constraint("Vertical", 28, 2, 31, 2),
    Sketcher.Constraint("Vertical", 30, 2, 33, 2),
    Sketcher.Constraint("Vertical", 32, 2, 35, 2),
    Sketcher.Constraint("Vertical", 34, 2, 37, 2),
    Sketcher.Constraint("Vertical", 36, 2, 39, 2),
    Sketcher.Constraint("Vertical", 38, 2, 41, 2),
    Sketcher.Constraint("Vertical", 40, 2, 45, 2),
    Sketcher.Constraint("Vertical", 46, 2, 48, 2),
    Sketcher.Constraint("Equal", 23, 0),
    Sketcher.Constraint("Equal", 0, 4),
    Sketcher.Constraint("Equal", 2, 6),
    Sketcher.Constraint("Equal", 4, 8),
    Sketcher.Constraint("Equal", 6, 10),
    Sketcher.Constraint("Equal", 8, 12),
    Sketcher.Constraint("Equal", 10, 14),
    Sketcher.Constraint("Equal", 12, 16),
    Sketcher.Constraint("Equal", 14, 18),
    Sketcher.Constraint("Equal", 16, 20),
    Sketcher.Constraint("Equal", 20, 24),
    Sketcher.Constraint("Equal", 18, 26),
    Sketcher.Constraint("Equal", 24, 28),
    Sketcher.Constraint("Equal", 26, 30),
    Sketcher.Constraint("Equal", 28, 32),
    Sketcher.Constraint("Equal", 30, 34),
    Sketcher.Constraint("Equal", 32, 36),
    Sketcher.Constraint("Equal", 34, 38),
    Sketcher.Constraint("Equal", 36, 40),
    Sketcher.Constraint("Equal", 38, 42),
    Sketcher.Constraint("DistanceX", 1, 1, 1, 2, Q("101 mm")),
    Sketcher.Constraint("DistanceX", 21, 2, 21, 1, Q("1 mm")),
    Sketcher.Constraint("DistanceY", 22, 1, 22, 2, Q("26 mm")),
    Sketcher.Constraint("DistanceX", 3, 2, 3, 1, Q("104.5 mm")),
    Sketcher.Constraint("DistanceX", -1, 1, 0, 2, Q("5 mm")),
    Sketcher.Constraint("DistanceY", 44, 1, 44, 2, Q("1.02402 mm")),
    Sketcher.Constraint("DistanceY", 49, 2, 49, 1, Q("1.261451 mm")),
])
pocket3 = body.newObject("PartDesign::Pocket", "Pocket002")
pocket3.Profile = sketch4
pocket3.Length = 2

# Sketch on XZ plane
sketch5 = body.newObject("Sketcher::SketchObject", "Sketch004")
sketch5.AttachmentSupport = (doc.getObject("XZ_Plane"), [""])
sketch5.MapMode = "FlatFace"
sketch5.AttachmentOffset = App.Placement(Vector(0, 0, -1.5), App.Rotation())
sketch5.addGeometry(Part.Circle(Vector(3, 13, 0), Vector(0, 0, 1), 0.9), False)
sketch5.addConstraint([
    Sketcher.Constraint("Diameter", 0, Q("1.8 mm")),
    Sketcher.Constraint("DistanceX", -1, 1, 0, 3, Q("3 mm")),
    Sketcher.Constraint("DistanceY", -1, 1, 0, 3, Q("13 mm")),
])
doc.recompute()
hole = body.newObject("PartDesign::Hole", "Hole")
hole.Profile = sketch5
hole.ThreadType = "None"
hole.Diameter = 1.8
hole.DepthType = "Dimension"
hole.Depth = 15
hole.DrillPoint = "Angled"
hole.DrillPointAngle = 118
hole.HoleCutType = "Countersink"
hole.HoleCutDiameter = 3.6
hole.HoleCutCountersinkAngle = 90
hole.Reversed = True

# Sketch on XZ plane
sketch6 = body.newObject("Sketcher::SketchObject", "Sketch005")
sketch6.AttachmentSupport = (doc.getObject("XZ_Plane"), [""])
sketch6.MapMode = "FlatFace"
sketch6.addGeometry(Part.Circle(Vector(7, 4.2, 0), Vector(0, 0, 1), 0.5), False)
sketch6.addConstraint([
    Sketcher.Constraint("Diameter", 0, Q("1 mm")),
    Sketcher.Constraint("DistanceX", -1, 1, 0, 3, Q("7 mm")),
    Sketcher.Constraint("DistanceY", -1, 1, 0, 3, Q("4.25 mm")),
])
pocket4 = body.newObject("PartDesign::Pocket", "Pocket003")
pocket4.Profile = sketch6
pocket4.Type = "ThroughAll"
doc.recompute()

fillet2 = body.newObject("PartDesign::Fillet", "Fillet001")
fillet2.Base = (pocket4, edges_at(pocket4, [(5, 3.5, 13)]))
fillet2.Radius = 0.5

doc.recompute()
